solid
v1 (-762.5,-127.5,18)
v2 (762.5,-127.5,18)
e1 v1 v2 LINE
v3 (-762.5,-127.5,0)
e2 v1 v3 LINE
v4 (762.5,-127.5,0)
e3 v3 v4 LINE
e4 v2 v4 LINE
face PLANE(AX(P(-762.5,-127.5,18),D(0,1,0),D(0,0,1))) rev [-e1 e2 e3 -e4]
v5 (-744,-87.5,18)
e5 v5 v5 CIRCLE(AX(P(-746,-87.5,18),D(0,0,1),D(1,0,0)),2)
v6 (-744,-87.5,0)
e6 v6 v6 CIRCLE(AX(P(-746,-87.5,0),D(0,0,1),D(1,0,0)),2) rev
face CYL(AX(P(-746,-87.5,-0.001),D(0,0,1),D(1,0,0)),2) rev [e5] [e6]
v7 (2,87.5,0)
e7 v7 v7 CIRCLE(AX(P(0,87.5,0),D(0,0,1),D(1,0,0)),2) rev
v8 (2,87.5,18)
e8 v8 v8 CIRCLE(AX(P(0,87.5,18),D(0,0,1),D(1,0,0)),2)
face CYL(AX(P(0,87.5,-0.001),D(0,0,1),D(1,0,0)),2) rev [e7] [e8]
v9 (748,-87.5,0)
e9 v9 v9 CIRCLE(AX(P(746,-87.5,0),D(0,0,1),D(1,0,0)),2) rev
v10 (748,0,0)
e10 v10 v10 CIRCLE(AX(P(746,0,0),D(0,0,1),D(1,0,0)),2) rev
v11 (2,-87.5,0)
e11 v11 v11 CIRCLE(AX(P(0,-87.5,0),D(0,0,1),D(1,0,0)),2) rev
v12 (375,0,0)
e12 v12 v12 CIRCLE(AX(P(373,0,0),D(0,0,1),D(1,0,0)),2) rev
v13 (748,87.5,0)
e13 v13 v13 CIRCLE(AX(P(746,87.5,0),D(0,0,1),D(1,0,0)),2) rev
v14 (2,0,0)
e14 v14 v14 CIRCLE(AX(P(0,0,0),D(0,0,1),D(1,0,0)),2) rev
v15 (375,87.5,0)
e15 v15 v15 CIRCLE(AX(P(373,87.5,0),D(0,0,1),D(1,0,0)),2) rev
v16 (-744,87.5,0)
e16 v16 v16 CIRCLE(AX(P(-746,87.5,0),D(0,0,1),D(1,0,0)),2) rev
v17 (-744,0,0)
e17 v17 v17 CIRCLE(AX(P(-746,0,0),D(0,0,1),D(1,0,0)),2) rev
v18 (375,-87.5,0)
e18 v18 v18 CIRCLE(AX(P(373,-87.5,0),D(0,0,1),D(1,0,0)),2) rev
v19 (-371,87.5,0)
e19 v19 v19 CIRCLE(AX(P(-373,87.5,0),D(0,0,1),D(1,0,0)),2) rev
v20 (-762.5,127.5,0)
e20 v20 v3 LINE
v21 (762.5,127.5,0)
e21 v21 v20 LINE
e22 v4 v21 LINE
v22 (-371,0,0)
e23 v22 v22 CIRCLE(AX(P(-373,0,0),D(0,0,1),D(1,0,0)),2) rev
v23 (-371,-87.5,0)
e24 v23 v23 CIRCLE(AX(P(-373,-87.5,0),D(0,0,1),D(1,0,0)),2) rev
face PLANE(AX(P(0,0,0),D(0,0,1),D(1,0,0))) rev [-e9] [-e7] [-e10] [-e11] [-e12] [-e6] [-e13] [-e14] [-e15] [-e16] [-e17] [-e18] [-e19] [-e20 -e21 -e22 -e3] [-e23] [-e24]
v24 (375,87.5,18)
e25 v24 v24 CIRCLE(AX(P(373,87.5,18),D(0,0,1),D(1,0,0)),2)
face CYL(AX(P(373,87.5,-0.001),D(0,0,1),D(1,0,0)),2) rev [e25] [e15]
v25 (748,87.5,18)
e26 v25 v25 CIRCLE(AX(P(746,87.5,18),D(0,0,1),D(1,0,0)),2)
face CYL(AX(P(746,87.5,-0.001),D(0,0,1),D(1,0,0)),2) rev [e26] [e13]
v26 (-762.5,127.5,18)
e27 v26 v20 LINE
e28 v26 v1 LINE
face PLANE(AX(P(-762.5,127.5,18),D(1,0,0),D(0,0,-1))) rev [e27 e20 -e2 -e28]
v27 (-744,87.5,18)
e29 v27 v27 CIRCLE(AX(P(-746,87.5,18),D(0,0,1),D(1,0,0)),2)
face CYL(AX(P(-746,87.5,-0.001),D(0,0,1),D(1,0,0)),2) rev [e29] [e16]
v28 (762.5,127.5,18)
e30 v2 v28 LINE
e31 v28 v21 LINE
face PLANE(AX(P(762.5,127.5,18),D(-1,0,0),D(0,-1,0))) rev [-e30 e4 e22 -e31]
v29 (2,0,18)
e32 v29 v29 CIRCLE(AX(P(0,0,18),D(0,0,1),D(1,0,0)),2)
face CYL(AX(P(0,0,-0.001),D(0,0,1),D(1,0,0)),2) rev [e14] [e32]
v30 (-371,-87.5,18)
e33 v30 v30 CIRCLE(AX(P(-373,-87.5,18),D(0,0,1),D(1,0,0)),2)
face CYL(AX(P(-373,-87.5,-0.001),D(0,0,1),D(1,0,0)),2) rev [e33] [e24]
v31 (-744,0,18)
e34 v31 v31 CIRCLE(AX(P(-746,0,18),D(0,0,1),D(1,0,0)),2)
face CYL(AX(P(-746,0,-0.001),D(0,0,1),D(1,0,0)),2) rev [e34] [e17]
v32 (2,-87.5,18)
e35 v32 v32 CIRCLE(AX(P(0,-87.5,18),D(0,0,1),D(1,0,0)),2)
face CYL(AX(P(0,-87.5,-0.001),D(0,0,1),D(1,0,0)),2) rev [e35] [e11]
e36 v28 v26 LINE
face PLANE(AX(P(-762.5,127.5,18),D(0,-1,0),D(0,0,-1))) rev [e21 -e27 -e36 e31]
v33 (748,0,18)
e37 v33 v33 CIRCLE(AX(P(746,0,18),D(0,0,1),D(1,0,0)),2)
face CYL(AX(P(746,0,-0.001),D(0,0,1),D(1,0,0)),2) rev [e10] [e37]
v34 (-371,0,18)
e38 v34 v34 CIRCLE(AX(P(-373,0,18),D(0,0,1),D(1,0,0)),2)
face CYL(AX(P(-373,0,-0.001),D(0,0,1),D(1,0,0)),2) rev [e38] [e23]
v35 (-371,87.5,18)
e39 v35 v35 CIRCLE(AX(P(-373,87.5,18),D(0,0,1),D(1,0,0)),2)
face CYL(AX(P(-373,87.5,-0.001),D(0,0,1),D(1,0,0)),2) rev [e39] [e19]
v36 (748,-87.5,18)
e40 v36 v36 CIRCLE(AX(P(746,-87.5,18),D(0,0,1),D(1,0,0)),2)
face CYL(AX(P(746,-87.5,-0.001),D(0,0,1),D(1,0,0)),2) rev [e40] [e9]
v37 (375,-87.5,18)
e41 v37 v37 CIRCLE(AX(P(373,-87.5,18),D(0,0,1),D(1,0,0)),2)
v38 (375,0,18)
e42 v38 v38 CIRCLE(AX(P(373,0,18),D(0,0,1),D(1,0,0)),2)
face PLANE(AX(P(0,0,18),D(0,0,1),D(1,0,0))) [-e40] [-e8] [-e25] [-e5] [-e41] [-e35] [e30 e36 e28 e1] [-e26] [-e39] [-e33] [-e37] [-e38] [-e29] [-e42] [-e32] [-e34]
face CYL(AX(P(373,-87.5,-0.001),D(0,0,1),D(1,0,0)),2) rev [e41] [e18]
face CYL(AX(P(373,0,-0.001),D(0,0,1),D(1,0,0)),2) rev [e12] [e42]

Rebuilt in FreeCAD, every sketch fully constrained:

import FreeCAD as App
import Part
import Sketcher
from FreeCAD import Vector

doc = App.newDocument("Part")
body = doc.addObject("PartDesign::Body", "Body")

# Sketch on XY plane
sketch1 = body.newObject("Sketcher::SketchObject", "Sketch")
sketch1.AttachmentSupport = (doc.getObject("XY_Plane"), [""])
sketch1.MapMode = "FlatFace"
sketch1.addGeometry([
    Part.LineSegment(Vector(-762, 128, 0), Vector(-762, -128, 0)),
    Part.LineSegment(Vector(-762, -128, 0), Vector(762, -128, 0)),
    Part.LineSegment(Vector(762, -128, 0), Vector(762, 128, 0)),
    Part.LineSegment(Vector(762, 128, 0), Vector(-762, 128, 0)),
], False)
sketch1.addConstraint([
    Sketcher.Constraint("Coincident", 0, 2, 1, 1),
    Sketcher.Constraint("Coincident", 1, 2, 2, 1),
    Sketcher.Constraint("Coincident", 2, 2, 3, 1),
    Sketcher.Constraint("Coincident", 3, 2, 0, 1),
    Sketcher.Constraint("Vertical", 0),
    Sketcher.Constraint("Horizontal", 1),
    Sketcher.Constraint("Vertical", 2),
    Sketcher.Constraint("Horizontal", 3),
    Sketcher.Constraint("Symmetric", 0, 2, 2, 2, -1, 1),
    Sketcher.Constraint("DistanceX", 1, 1, 1, 2, 1525.0),
    Sketcher.Constraint("DistanceY", 0, 2, 0, 1, 255.0),
])
pad1 = body.newObject("PartDesign::Pad", "Pad")
pad1.Profile = sketch1
pad1.Length = 18

# Sketch on XY plane
sketch2 = body.newObject("Sketcher::SketchObject", "Sketch001")
sketch2.AttachmentSupport = (doc.getObject("XY_Plane"), [""])
sketch2.MapMode = "FlatFace"
sketch2.AttachmentOffset = App.Placement(Vector(0, 0, 18), App.Rotation())
sketch2.addGeometry(Part.Circle(Vector(-746, 87.5, 0), Vector(0, 0, 1), 2), False)
sketch2.addConstraint([
    Sketcher.Constraint("Diameter", 0, 4.0),
    Sketcher.Constraint("DistanceX", 0, 3, -1, 1, 746.0),
    Sketcher.Constraint("DistanceY", -1, 1, 0, 3, 87.5),
])
pocket1 = body.newObject("PartDesign::Pocket", "Pocket")
pocket1.Profile = sketch2
pocket1.Type = "UpToFirst"

# Sketch on XY plane
sketch3 = body.newObject("Sketcher::SketchObject", "Sketch002")
sketch3.AttachmentSupport = (doc.getObject("XY_Plane"), [""])
sketch3.MapMode = "FlatFace"
sketch3.AttachmentOffset = App.Placement(Vector(0, 0, 18), App.Rotation())
sketch3.addGeometry(Part.Circle(Vector(-746, 0, 0), Vector(0, 0, 1), 2), False)
sketch3.addConstraint([
    Sketcher.Constraint("PointOnObject", 0, 3, -1),
    Sketcher.Constraint("Diameter", 0, 4.0),
    Sketcher.Constraint("DistanceX", 0, 3, -1, 1, 746.0),
])
pocket2 = body.newObject("PartDesign::Pocket", "Pocket001")
pocket2.Profile = sketch3
pocket2.Type = "UpToFirst"

# Sketch on XY plane
sketch4 = body.newObject("Sketcher::SketchObject", "Sketch003")
sketch4.AttachmentSupport = (doc.getObject("XY_Plane"), [""])
sketch4.MapMode = "FlatFace"
sketch4.AttachmentOffset = App.Placement(Vector(0, 0, 18), App.Rotation())
sketch4.addGeometry(Part.Circle(Vector(-746, -87.5, 0), Vector(0, 0, 1), 2), False)
sketch4.addConstraint([
    Sketcher.Constraint("Diameter", 0, 4.0),
    Sketcher.Constraint("DistanceX", 0, 3, -1, 1, 746.0),
    Sketcher.Constraint("DistanceY", 0, 3, -1, 1, 87.5),
])
pocket3 = body.newObject("PartDesign::Pocket", "Pocket002")
pocket3.Profile = sketch4
pocket3.Type = "UpToFirst"

# Sketch on XY plane
sketch5 = body.newObject("Sketcher::SketchObject", "Sketch004")
sketch5.AttachmentSupport = (doc.getObject("XY_Plane"), [""])
sketch5.MapMode = "FlatFace"
sketch5.AttachmentOffset = App.Placement(Vector(0, 0, 18), App.Rotation())
sketch5.addGeometry(Part.Circle(Vector(-373, -87.5, 0), Vector(0, 0, 1), 2), False)
sketch5.addConstraint([
    Sketcher.Constraint("Diameter", 0, 4.0),
    Sketcher.Constraint("DistanceX", 0, 3, -1, 1, 373.0),
    Sketcher.Constraint("DistanceY", 0, 3, -1, 1, 87.5),
])
pocket4 = body.newObject("PartDesign::Pocket", "Pocket003")
pocket4.Profile = sketch5
pocket4.Type = "UpToFirst"

# Sketch on XY plane
sketch6 = body.newObject("Sketcher::SketchObject", "Sketch005")
sketch6.AttachmentSupport = (doc.getObject("XY_Plane"), [""])
sketch6.MapMode = "FlatFace"
sketch6.AttachmentOffset = App.Placement(Vector(0, 0, 18), App.Rotation())
sketch6.addGeometry(Part.Circle(Vector(-373, 0, 0), Vector(0, 0, 1), 2), False)
sketch6.addConstraint([
    Sketcher.Constraint("PointOnObject", 0, 3, -1),
    Sketcher.Constraint("Diameter", 0, 4.0),
    Sketcher.Constraint("DistanceX", 0, 3, -1, 1, 373.0),
])
pocket5 = body.newObject("PartDesign::Pocket", "Pocket004")
pocket5.Profile = sketch6
pocket5.Type = "UpToFirst"

# Sketch on XY plane
sketch7 = body.newObject("Sketcher::SketchObject", "Sketch006")
sketch7.AttachmentSupport = (doc.getObject("XY_Plane"), [""])
sketch7.MapMode = "FlatFace"
sketch7.AttachmentOffset = App.Placement(Vector(0, 0, 18), App.Rotation())
sketch7.addGeometry(Part.Circle(Vector(-373, 87.5, 0), Vector(0, 0, 1), 2), False)
sketch7.addConstraint([
    Sketcher.Constraint("Diameter", 0, 4.0),
    Sketcher.Constraint("DistanceX", 0, 3, -1, 1, 373.0),
    Sketcher.Constraint("DistanceY", -1, 1, 0, 3, 87.5),
])
pocket6 = body.newObject("PartDesign::Pocket", "Pocket005")
pocket6.Profile = sketch7
pocket6.Type = "UpToFirst"

# Sketch on XY plane
sketch8 = body.newObject("Sketcher::SketchObject", "Sketch007")
sketch8.AttachmentSupport = (doc.getObject("XY_Plane"), [""])
sketch8.MapMode = "FlatFace"
sketch8.AttachmentOffset = App.Placement(Vector(0, 0, 18), App.Rotation())
sketch8.addGeometry(Part.Circle(Vector(0, -87.5, 0), Vector(0, 0, 1), 2), False)
sketch8.addConstraint([
    Sketcher.Constraint("PointOnObject", 0, 3, -2),
    Sketcher.Constraint("Diameter", 0, 4.0),
    Sketcher.Constraint("DistanceY", 0, 3, -1, 1, 87.5),
])
pocket7 = body.newObject("PartDesign::Pocket", "Pocket006")
pocket7.Profile = sketch8
pocket7.Type = "UpToFirst"

# Sketch on XY plane
sketch9 = body.newObject("Sketcher::SketchObject", "Sketch008")
sketch9.AttachmentSupport = (doc.getObject("XY_Plane"), [""])
sketch9.MapMode = "FlatFace"
sketch9.AttachmentOffset = App.Placement(Vector(0, 0, 18), App.Rotation())
sketch9.addGeometry(Part.Circle(Vector(0, 0, 0), Vector(0, 0, 1), 2), False)
sketch9.addConstraint([
    Sketcher.Constraint("Coincident", 0, 3, -1, 1),
    Sketcher.Constraint("Diameter", 0, 4.0),
])
pocket8 = body.newObject("PartDesign::Pocket", "Pocket007")
pocket8.Profile = sketch9
pocket8.Type = "UpToFirst"

# Sketch on XY plane
sketch10 = body.newObject("Sketcher::SketchObject", "Sketch009")
sketch10.AttachmentSupport = (doc.getObject("XY_Plane"), [""])
sketch10.MapMode = "FlatFace"
sketch10.AttachmentOffset = App.Placement(Vector(0, 0, 18), App.Rotation())
sketch10.addGeometry(Part.Circle(Vector(0, 87.5, 0), Vector(0, 0, 1), 2), False)
sketch10.addConstraint([
    Sketcher.Constraint("PointOnObject", 0, 3, -2),
    Sketcher.Constraint("Diameter", 0, 4.0),
    Sketcher.Constraint("DistanceY", -1, 1, 0, 3, 87.5),
])
pocket9 = body.newObject("PartDesign::Pocket", "Pocket008")
pocket9.Profile = sketch10
pocket9.Type = "UpToFirst"

# Sketch on XY plane
sketch11 = body.newObject("Sketcher::SketchObject", "Sketch010")
sketch11.AttachmentSupport = (doc.getObject("XY_Plane"), [""])
sketch11.MapMode = "FlatFace"
sketch11.AttachmentOffset = App.Placement(Vector(0, 0, 18), App.Rotation())
sketch11.addGeometry(Part.Circle(Vector(373, -87.5, 0), Vector(0, 0, 1), 2), False)
sketch11.addConstraint([
    Sketcher.Constraint("Diameter", 0, 4.0),
    Sketcher.Constraint("DistanceX", -1, 1, 0, 3, 373.0),
    Sketcher.Constraint("DistanceY", 0, 3, -1, 1, 87.5),
])
pocket10 = body.newObject("PartDesign::Pocket", "Pocket009")
pocket10.Profile = sketch11
pocket10.Type = "UpToFirst"

# Sketch on XY plane
sketch12 = body.newObject("Sketcher::SketchObject", "Sketch011")
sketch12.AttachmentSupport = (doc.getObject("XY_Plane"), [""])
sketch12.MapMode = "FlatFace"
sketch12.AttachmentOffset = App.Placement(Vector(0, 0, 18), App.Rotation())
sketch12.addGeometry(Part.Circle(Vector(373, 0, 0), Vector(0, 0, 1), 2), False)
sketch12.addConstraint([
    Sketcher.Constraint("PointOnObject", 0, 3, -1),
    Sketcher.Constraint("Diameter", 0, 4.0),
    Sketcher.Constraint("DistanceX", -1, 1, 0, 3, 373.0),
])
pocket11 = body.newObject("PartDesign::Pocket", "Pocket010")
pocket11.Profile = sketch12
pocket11.Type = "UpToFirst"

# Sketch on XY plane
sketch13 = body.newObject("Sketcher::SketchObject", "Sketch012")
sketch13.AttachmentSupport = (doc.getObject("XY_Plane"), [""])
sketch13.MapMode = "FlatFace"
sketch13.AttachmentOffset = App.Placement(Vector(0, 0, 18), App.Rotation())
sketch13.addGeometry(Part.Circle(Vector(373, 87.5, 0), Vector(0, 0, 1), 2), False)
sketch13.addConstraint([
    Sketcher.Constraint("Diameter", 0, 4.0),
    Sketcher.Constraint("DistanceX", -1, 1, 0, 3, 373.0),
    Sketcher.Constraint("DistanceY", -1, 1, 0, 3, 87.5),
])
pocket12 = body.newObject("PartDesign::Pocket", "Pocket011")
pocket12.Profile = sketch13
pocket12.Type = "UpToFirst"

# Sketch on XY plane
sketch14 = body.newObject("Sketcher::SketchObject", "Sketch013")
sketch14.AttachmentSupport = (doc.getObject("XY_Plane"), [""])
sketch14.MapMode = "FlatFace"
sketch14.AttachmentOffset = App.Placement(Vector(0, 0, 18), App.Rotation())
sketch14.addGeometry(Part.Circle(Vector(746, -87.5, 0), Vector(0, 0, 1), 2), False)
sketch14.addConstraint([
    Sketcher.Constraint("Diameter", 0, 4.0),
    Sketcher.Constraint("DistanceX", -1, 1, 0, 3, 746.0),
    Sketcher.Constraint("DistanceY", 0, 3, -1, 1, 87.5),
])
pocket13 = body.newObject("PartDesign::Pocket", "Pocket012")
pocket13.Profile = sketch14
pocket13.Type = "UpToFirst"

# Sketch on XY plane
sketch15 = body.newObject("Sketcher::SketchObject", "Sketch014")
sketch15.AttachmentSupport = (doc.getObject("XY_Plane"), [""])
sketch15.MapMode = "FlatFace"
sketch15.AttachmentOffset = App.Placement(Vector(0, 0, 18), App.Rotation())
sketch15.addGeometry(Part.Circle(Vector(746, 0, 0), Vector(0, 0, 1), 2), False)
sketch15.addConstraint([
    Sketcher.Constraint("PointOnObject", 0, 3, -1),
    Sketcher.Constraint("Diameter", 0, 4.0),
    Sketcher.Constraint("DistanceX", -1, 1, 0, 3, 746.0),
])
pocket14 = body.newObject("PartDesign::Pocket", "Pocket013")
pocket14.Profile = sketch15
pocket14.Type = "UpToFirst"

# Sketch on XY plane
sketch16 = body.newObject("Sketcher::SketchObject", "Sketch015")
sketch16.AttachmentSupport = (doc.getObject("XY_Plane"), [""])
sketch16.MapMode = "FlatFace"
sketch16.AttachmentOffset = App.Placement(Vector(0, 0, 18), App.Rotation())
sketch16.addGeometry(Part.Circle(Vector(746, 87.5, 0), Vector(0, 0, 1), 2), False)
sketch16.addConstraint([
    Sketcher.Constraint("Diameter", 0, 4.0),
    Sketcher.Constraint("DistanceX", -1, 1, 0, 3, 746.0),
    Sketcher.Constraint("DistanceY", -1, 1, 0, 3, 87.5),
])
pocket15 = body.newObject("PartDesign::Pocket", "Pocket014")
pocket15.Profile = sketch16
pocket15.Type = "UpToFirst"

doc.recompute()
